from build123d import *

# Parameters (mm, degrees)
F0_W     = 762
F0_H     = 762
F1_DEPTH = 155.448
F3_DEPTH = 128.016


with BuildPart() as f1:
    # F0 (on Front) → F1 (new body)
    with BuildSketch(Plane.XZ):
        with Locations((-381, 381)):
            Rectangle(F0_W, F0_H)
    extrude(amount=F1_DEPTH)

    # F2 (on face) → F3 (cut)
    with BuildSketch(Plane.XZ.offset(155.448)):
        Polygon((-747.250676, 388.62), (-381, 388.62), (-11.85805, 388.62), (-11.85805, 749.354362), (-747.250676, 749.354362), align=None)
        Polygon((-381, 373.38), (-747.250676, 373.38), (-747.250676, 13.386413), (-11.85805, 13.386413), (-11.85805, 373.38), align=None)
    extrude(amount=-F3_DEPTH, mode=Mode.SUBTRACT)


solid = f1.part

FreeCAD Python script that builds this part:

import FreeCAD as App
import Part
import Sketcher

V = App.Vector
Q = App.Units.Quantity

doc = App.newDocument("Part")
body = doc.addObject("PartDesign::Body", "Body")

sketch1 = body.newObject("Sketcher::SketchObject", "Sketch")
sketch1.AttachmentSupport = (doc.getObject("XZ_Plane"), [""])
sketch1.MapMode = "FlatFace"
sketch1.addGeometry([
    Part.LineSegment(V(-762, 762, 0), V(-762, 0, 0)),
    Part.LineSegment(V(-762, 0, 0), V(0, 0, 0)),
    Part.LineSegment(V(0, 0, 0), V(0, 762, 0)),
    Part.LineSegment(V(0, 762, 0), V(-762, 762, 0)),
], False)
sketch1.addConstraint([
    Sketcher.Constraint("Coincident", 0, 2, 1, 1),
    Sketcher.Constraint("Coincident", 1, 2, 2, 1),
    Sketcher.Constraint("Coincident", 2, 2, 3, 1),
    Sketcher.Constraint("Coincident", 3, 2, 0, 1),
    Sketcher.Constraint("Vertical", 0),
    Sketcher.Constraint("Horizontal", 1),
    Sketcher.Constraint("Vertical", 2),
    Sketcher.Constraint("Horizontal", 3),
    Sketcher.Constraint("Coincident", 1, 2, -1, 1),
    Sketcher.Constraint("Equal", 3, 0),
    Sketcher.Constraint("DistanceX", 1, 1, 1, 2, Q("30 in")),
])
pad1 = body.newObject("PartDesign::Pad", "Pad")
pad1.Profile = sketch1
pad1.Length = Q("6.12 in")

sketch2 = body.newObject("Sketcher::SketchObject", "Sketch001")
sketch2.AttachmentSupport = (doc.getObject("XZ_Plane"), [""])
sketch2.MapMode = "FlatFace"
sketch2.AttachmentOffset = App.Placement(V(0, 0, 6.12 * 25.4), App.Rotation())
sketch2.addGeometry([
    Part.LineSegment(V(-747, 389, 0), V(-12, 389, 0)),
    Part.LineSegment(V(-12, 389, 0), V(-12, 749, 0)),
    Part.LineSegment(V(-12, 749, 0), V(-747, 749, 0)),
    Part.LineSegment(V(-747, 749, 0), V(-747, 389, 0)),
    Part.LineSegment(V(-747, 373, 0), V(-747, 13, 0)),
    Part.LineSegment(V(-747, 13, 0), V(-12, 13, 0)),
    Part.LineSegment(V(-12, 13, 0), V(-12, 373, 0)),
    Part.LineSegment(V(-12, 373, 0), V(-747, 373, 0)),
], False)
sketch2.addConstraint([
    Sketcher.Constraint("Coincident", 0, 2, 1, 1),
    Sketcher.Constraint("Coincident", 1, 2, 2, 1),
    Sketcher.Constraint("Coincident", 2, 2, 3, 1),
    Sketcher.Constraint("Coincident", 3, 2, 0, 1),
    Sketcher.Constraint("Coincident", 4, 2, 5, 1),
    Sketcher.Constraint("Coincident", 5, 2, 6, 1),
    Sketcher.Constraint("Coincident", 6, 2, 7, 1),
    Sketcher.Constraint("Coincident", 7, 2, 4, 1),
    Sketcher.Constraint("Horizontal", 0),
    Sketcher.Constraint("Vertical", 1),
    Sketcher.Constraint("Horizontal", 2),
    Sketcher.Constraint("Vertical", 3),
    Sketcher.Constraint("Vertical", 4),
    Sketcher.Constraint("Horizontal", 5),
    Sketcher.Constraint("Vertical", 6),
    Sketcher.Constraint("Horizontal", 7),
    Sketcher.Constraint("Vertical", 3, 2, 4, 2),
    Sketcher.Constraint("Vertical", 1, 2, 5, 2),
    Sketcher.Constraint("DistanceY", -1, 1, 0, 2, Q("15.3 in")),
    Sketcher.Constraint("DistanceY", -1, 1, 6, 2, Q("14.7 in")),
    Sketcher.Constraint("DistanceX", 0, 1, 0, 2, 735.392626),
    Sketcher.Constraint("DistanceY", 1, 1, 1, 2, 360.734362),
    Sketcher.Constraint("DistanceY", 4, 2, 4, 1, 359.993587),
    Sketcher.Constraint("DistanceX", 0, 2, -1, 1, 11.85805),
])
pocket1 = body.newObject("PartDesign::Pocket", "Pocket")
pocket1.Profile = sketch2
pocket1.Length = Q("5.04 in")

doc.recompute()
